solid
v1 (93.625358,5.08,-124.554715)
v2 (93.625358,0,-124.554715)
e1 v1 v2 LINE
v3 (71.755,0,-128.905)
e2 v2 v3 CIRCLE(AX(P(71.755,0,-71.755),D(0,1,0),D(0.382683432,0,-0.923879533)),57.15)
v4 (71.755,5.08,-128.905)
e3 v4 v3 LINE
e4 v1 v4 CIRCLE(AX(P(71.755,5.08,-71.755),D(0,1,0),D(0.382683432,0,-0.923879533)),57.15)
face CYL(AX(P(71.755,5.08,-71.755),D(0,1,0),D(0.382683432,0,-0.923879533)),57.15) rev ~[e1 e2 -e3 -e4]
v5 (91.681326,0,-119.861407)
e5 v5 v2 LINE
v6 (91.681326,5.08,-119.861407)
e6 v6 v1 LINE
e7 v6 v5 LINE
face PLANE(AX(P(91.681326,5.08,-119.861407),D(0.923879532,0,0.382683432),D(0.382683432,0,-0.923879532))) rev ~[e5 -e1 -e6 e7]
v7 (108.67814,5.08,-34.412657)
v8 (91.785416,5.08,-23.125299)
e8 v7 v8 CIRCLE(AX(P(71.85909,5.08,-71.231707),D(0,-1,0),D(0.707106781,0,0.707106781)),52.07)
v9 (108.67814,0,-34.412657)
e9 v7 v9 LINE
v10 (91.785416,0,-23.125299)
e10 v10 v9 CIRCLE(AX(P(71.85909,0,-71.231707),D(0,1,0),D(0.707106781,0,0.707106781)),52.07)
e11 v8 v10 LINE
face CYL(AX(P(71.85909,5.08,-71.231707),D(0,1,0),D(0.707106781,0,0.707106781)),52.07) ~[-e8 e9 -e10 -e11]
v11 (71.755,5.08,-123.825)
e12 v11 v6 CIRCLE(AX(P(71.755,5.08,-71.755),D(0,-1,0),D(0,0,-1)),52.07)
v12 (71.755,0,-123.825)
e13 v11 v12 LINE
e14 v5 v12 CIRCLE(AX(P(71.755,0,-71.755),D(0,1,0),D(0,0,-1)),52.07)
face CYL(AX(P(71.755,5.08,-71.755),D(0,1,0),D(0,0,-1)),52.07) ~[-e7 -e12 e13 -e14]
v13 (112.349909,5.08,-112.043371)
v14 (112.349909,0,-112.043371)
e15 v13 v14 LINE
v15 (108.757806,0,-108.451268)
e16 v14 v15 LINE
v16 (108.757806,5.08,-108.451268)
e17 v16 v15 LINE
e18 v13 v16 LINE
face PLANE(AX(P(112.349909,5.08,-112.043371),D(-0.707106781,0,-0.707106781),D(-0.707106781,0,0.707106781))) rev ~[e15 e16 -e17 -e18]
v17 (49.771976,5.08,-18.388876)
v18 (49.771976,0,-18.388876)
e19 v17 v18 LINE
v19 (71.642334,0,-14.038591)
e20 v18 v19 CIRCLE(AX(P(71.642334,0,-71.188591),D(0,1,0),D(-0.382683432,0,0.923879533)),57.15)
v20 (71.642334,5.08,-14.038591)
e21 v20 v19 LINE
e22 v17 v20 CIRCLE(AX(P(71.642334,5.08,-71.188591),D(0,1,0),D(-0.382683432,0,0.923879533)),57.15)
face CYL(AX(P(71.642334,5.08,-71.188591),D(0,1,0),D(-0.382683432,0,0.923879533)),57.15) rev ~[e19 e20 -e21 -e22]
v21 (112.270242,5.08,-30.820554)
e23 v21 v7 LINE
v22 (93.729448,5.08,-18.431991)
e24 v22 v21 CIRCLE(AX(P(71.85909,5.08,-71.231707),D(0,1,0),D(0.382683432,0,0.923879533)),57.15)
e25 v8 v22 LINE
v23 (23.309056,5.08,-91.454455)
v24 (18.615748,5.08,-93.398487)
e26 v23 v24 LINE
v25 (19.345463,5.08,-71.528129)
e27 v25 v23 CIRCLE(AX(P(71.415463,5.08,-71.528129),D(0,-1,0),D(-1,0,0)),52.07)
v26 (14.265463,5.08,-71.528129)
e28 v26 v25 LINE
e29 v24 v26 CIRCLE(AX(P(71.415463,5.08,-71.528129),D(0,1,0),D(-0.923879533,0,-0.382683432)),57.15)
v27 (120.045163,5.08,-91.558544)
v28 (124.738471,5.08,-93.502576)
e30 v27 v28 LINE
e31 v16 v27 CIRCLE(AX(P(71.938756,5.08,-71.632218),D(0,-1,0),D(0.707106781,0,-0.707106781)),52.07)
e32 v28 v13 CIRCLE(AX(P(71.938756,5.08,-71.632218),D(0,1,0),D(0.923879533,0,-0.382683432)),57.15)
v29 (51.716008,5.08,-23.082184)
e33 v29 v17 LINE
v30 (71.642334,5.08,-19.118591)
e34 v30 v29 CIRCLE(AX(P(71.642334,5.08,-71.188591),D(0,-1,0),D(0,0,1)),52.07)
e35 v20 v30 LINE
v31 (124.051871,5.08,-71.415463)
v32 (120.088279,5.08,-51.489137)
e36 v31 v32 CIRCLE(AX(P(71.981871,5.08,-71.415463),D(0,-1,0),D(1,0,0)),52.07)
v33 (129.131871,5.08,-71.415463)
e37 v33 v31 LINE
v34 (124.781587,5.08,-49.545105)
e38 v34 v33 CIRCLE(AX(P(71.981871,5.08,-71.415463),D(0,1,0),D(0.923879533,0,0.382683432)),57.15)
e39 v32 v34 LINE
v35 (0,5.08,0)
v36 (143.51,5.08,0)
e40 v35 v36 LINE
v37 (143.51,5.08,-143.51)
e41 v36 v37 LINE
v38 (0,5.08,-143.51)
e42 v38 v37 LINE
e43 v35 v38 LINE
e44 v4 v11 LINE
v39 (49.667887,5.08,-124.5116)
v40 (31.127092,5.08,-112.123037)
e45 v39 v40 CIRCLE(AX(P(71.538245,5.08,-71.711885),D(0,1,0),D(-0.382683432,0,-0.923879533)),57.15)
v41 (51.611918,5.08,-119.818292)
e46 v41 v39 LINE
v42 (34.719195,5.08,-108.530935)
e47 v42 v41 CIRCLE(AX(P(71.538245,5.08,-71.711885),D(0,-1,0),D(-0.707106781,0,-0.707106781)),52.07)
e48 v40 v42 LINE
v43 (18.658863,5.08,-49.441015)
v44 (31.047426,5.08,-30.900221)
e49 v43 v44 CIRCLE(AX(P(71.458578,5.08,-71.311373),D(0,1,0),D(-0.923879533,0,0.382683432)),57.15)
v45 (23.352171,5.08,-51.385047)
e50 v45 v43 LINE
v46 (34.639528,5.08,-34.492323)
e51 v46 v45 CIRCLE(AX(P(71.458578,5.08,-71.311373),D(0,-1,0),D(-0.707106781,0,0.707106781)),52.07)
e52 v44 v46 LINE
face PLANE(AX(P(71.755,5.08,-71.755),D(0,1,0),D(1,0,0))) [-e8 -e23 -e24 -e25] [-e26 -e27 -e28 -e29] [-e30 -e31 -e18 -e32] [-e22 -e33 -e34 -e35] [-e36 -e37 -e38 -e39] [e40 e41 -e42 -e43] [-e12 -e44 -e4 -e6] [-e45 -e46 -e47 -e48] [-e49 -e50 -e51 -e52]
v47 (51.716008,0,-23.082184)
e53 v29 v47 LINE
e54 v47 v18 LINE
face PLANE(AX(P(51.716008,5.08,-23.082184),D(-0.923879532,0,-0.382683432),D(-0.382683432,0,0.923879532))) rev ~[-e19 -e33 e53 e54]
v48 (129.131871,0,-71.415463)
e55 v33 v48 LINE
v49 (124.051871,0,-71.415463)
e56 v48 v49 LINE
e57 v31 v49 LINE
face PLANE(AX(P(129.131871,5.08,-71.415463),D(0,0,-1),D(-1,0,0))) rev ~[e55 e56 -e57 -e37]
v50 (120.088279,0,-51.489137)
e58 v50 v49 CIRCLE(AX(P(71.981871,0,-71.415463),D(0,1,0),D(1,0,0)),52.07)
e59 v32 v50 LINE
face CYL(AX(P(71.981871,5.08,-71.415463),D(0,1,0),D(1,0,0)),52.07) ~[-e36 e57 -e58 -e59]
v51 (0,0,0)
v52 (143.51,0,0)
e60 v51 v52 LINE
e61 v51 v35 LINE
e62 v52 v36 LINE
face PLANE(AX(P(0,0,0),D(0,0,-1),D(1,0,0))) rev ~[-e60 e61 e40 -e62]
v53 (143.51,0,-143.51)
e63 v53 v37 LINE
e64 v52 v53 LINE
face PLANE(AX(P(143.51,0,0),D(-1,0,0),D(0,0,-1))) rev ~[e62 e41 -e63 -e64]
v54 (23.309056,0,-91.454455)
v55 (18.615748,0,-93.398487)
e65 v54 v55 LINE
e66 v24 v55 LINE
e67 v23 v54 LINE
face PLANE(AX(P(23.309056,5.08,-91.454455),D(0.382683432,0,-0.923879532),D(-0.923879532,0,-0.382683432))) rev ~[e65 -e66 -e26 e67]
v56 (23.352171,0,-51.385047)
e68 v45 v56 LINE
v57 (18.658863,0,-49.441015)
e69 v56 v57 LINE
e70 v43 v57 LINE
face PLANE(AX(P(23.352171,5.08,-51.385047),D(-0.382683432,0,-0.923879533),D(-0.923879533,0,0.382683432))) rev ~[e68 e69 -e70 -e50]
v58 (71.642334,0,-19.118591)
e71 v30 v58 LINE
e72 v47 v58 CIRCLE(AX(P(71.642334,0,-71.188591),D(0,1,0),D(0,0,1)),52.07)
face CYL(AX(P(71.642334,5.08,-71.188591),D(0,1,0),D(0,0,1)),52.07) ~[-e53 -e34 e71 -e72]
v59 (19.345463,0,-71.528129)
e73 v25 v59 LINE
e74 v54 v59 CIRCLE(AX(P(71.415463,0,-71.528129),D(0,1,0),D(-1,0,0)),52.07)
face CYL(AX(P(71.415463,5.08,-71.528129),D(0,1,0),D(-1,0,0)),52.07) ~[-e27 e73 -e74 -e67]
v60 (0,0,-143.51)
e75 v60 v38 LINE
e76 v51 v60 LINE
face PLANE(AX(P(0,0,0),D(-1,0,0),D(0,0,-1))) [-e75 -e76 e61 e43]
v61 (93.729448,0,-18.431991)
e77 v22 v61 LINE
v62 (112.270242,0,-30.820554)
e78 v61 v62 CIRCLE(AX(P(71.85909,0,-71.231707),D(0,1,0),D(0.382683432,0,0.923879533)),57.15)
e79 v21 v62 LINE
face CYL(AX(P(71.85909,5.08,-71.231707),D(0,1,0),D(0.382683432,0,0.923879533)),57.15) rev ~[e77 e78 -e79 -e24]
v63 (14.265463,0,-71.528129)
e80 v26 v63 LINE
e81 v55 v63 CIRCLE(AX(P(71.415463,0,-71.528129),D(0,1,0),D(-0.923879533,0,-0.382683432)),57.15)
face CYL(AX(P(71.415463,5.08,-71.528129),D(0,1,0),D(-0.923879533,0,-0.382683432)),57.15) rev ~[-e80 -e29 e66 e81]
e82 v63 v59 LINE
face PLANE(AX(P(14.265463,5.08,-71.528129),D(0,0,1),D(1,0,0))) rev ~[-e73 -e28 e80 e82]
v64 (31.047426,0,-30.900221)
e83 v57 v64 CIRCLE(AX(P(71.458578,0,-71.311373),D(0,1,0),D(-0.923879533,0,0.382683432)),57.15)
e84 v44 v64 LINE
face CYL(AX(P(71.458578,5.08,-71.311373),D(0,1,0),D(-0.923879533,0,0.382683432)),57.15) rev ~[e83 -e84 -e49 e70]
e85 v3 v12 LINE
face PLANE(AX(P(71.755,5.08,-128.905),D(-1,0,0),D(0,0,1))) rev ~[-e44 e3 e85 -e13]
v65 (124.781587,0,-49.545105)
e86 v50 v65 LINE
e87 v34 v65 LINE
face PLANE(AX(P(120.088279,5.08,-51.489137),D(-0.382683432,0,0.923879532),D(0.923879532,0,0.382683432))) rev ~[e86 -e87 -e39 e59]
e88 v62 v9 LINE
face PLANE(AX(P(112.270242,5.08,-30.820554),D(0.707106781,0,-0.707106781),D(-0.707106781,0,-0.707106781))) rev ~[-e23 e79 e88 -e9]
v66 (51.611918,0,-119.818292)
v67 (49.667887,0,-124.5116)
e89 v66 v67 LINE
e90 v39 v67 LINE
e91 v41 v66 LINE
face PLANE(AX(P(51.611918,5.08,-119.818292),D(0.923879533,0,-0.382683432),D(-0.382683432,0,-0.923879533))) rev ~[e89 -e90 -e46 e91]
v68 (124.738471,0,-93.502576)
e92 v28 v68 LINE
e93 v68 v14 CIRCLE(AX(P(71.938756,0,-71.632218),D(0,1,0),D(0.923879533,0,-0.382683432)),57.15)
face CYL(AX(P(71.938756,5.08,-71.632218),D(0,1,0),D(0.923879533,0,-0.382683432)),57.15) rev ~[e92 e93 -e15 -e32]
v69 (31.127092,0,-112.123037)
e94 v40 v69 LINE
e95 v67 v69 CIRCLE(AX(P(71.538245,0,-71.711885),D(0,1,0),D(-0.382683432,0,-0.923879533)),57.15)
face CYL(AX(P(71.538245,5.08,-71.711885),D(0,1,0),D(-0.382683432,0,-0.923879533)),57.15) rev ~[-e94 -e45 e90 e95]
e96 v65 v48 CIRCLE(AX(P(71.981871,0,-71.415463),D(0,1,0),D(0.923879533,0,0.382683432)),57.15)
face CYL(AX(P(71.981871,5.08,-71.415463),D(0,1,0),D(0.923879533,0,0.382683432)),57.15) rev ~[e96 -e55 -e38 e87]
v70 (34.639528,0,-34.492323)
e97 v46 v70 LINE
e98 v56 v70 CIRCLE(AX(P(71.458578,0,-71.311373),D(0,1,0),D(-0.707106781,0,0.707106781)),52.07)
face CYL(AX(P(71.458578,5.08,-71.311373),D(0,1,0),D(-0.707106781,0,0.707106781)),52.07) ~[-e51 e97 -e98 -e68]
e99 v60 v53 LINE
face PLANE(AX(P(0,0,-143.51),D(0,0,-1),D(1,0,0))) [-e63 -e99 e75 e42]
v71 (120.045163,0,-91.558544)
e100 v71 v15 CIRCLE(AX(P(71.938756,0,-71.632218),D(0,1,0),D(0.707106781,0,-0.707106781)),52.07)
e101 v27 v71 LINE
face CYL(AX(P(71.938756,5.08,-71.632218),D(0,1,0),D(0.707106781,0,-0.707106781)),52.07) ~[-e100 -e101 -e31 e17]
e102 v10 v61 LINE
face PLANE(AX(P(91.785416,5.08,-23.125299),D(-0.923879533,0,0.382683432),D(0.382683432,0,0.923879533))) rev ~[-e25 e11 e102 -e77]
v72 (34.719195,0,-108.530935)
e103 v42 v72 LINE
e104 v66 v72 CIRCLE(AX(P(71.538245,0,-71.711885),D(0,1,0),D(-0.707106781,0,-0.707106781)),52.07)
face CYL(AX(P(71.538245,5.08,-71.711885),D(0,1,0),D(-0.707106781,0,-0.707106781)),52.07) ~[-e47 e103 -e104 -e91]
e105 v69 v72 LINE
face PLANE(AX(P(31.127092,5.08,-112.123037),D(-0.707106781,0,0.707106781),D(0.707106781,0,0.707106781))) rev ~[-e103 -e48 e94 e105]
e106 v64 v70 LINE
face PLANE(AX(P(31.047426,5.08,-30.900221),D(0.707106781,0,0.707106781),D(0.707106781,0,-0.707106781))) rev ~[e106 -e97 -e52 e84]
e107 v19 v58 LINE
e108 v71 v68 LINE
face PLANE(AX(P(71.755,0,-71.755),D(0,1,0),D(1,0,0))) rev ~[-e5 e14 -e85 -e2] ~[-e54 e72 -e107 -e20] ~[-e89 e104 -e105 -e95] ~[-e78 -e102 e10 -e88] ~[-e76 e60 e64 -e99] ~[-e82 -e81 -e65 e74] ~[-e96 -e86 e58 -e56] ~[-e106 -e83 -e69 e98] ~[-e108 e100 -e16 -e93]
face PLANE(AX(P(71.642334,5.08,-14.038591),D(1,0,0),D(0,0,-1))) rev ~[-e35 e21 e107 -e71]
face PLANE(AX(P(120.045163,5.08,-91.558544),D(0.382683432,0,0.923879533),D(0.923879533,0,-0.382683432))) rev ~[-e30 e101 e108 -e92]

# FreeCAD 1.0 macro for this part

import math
import FreeCAD as App
import Part
import Sketcher
Q = App.Units.Quantity

doc = App.newDocument("Part")
body = doc.addObject("PartDesign::Body", "Body")

# Sketch on XZ plane
sketch1 = body.newObject("Sketcher::SketchObject", "Sketch")
sketch1.AttachmentSupport = (doc.getObject("XZ_Plane"), [""])
sketch1.MapMode = "FlatFace"
sketch1.addGeometry([
    Part.LineSegment(App.Vector(0, -144, 0), App.Vector(0, 0, 0)),
    Part.LineSegment(App.Vector(0, 0, 0), App.Vector(144, 0, 0)),
    Part.LineSegment(App.Vector(144, 0, 0), App.Vector(144, -144, 0)),
    Part.LineSegment(App.Vector(144, -144, 0), App.Vector(0, -144, 0)),
], False)
sketch1.addConstraint([
    Sketcher.Constraint("Coincident", 0, 2, 1, 1),
    Sketcher.Constraint("Coincident", 1, 2, 2, 1),
    Sketcher.Constraint("Coincident", 2, 2, 3, 1),
    Sketcher.Constraint("Coincident", 3, 2, 0, 1),
    Sketcher.Constraint("Vertical", 0),
    Sketcher.Constraint("Horizontal", 1),
    Sketcher.Constraint("Vertical", 2),
    Sketcher.Constraint("Horizontal", 3),
    Sketcher.Constraint("Coincident", 0, 2, -1, 1),
    Sketcher.Constraint("Equal", 3, 0),
    Sketcher.Constraint("DistanceX", 1, 1, 1, 2, Q("5.65 in")),
])
pad1 = body.newObject("PartDesign::Pad", "Pad")
pad1.Profile = sketch1
pad1.Length = Q("0.2 in")
pad1.Reversed = True

# Sketch on XZ plane
sketch2 = body.newObject("Sketcher::SketchObject", "Sketch001")
sketch2.AttachmentSupport = (doc.getObject("XZ_Plane"), [""])
sketch2.MapMode = "FlatFace"
sketch2.AttachmentOffset = App.Placement(App.Vector(0, 0, -0.2 * 25.4), App.Rotation())
sketch2.addGeometry([
    Part.LineSegment(App.Vector(72, -129, 0), App.Vector(72, -124, 0)),
    Part.ArcOfCircle(Part.Circle(App.Vector(72, -72, 0), App.Vector(0, 0, 1), 52), math.radians(-90), math.radians(-67)),
    Part.LineSegment(App.Vector(92, -120, 0), App.Vector(94, -125, 0)),
    Part.ArcOfCircle(Part.Circle(App.Vector(72, -72, 0), App.Vector(0, 0, 1), 57), math.radians(-90), math.radians(-68)),
], False)
sketch2.addConstraint([
    Sketcher.Constraint("Coincident", 0, 2, 1, 1),
    Sketcher.Constraint("Coincident", 1, 2, 2, 1),
    Sketcher.Constraint("Coincident", 2, 2, 3, 2),
    Sketcher.Constraint("Coincident", 3, 1, 0, 1),
    Sketcher.Constraint("Vertical", 0),
    Sketcher.Constraint("Coincident", 3, 3, 1, 3),
    Sketcher.Constraint("Vertical", 3, 3, 0, 2),
    Sketcher.Constraint("Radius", 1, Q("2.05 in")),
    Sketcher.Constraint("Radius", 3, Q("2.25 in")),
    Sketcher.Constraint("Angle", 2, Q("-67.5 deg")),
    Sketcher.Constraint("DistanceX", -1, 1, 1, 3, Q("2.825 in")),
    Sketcher.Constraint("DistanceY", 1, 3, -1, 1, Q("2.825 in")),
    Sketcher.Constraint("DistanceX", -1, 1, 2, 2, 93.625358),
])
pocket1 = body.newObject("PartDesign::Pocket", "Pocket")
pocket1.Profile = sketch2
pocket1.Type = "ThroughAll"
pocket1.Reversed = True
doc.recompute()

datumline = body.newObject("PartDesign::Line", "DatumLine")
datumline.Placement = App.Placement(App.Vector(71.698667, 0, -71.471796), App.Rotation(App.Vector(0, 0, 1), App.Vector(0, 1, 0)))
polarpattern = body.newObject("PartDesign::PolarPattern", "PolarPattern")
polarpattern.Originals = [pocket1]
polarpattern.Axis = (datumline, [""])
polarpattern.Angle = 360
polarpattern.Occurrences = 8
body.Tip = polarpattern

doc.recompute()
